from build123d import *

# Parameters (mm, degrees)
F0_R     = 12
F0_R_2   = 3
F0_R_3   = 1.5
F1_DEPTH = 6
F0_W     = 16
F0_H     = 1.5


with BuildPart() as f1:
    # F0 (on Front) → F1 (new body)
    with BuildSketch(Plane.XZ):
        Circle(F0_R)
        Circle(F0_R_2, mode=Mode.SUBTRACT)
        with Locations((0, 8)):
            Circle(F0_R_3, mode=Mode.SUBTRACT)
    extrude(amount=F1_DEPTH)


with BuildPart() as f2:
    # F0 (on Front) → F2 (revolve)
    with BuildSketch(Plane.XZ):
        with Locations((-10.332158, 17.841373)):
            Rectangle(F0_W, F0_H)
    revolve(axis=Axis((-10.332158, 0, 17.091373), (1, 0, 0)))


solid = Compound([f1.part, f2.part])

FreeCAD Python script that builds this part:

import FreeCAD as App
import Part
import Sketcher
from FreeCAD import Vector


def add_polygon(sketch, points):
    """Adds a closed chain of lines whose ends are joined by coincident constraints."""
    first, n = sketch.GeometryCount, len(points)
    for a, b in zip(points, points[1:] + points[:1]):
        sketch.addGeometry(Part.LineSegment(App.Vector(*a, 0), App.Vector(*b, 0)), False)
    for i in range(n):
        sketch.addConstraint(Sketcher.Constraint("Coincident", first + i, 2, first + (i + 1) % n, 1))

doc = App.newDocument("Part")
body = doc.addObject("PartDesign::Body", "Body")

# Sketch on XZ plane
sketch1 = body.newObject("Sketcher::SketchObject", "Sketch")
sketch1.AttachmentSupport = (doc.getObject("XZ_Plane"), [""])
sketch1.MapMode = "FlatFace"
sketch1.addGeometry(Part.Circle(Vector(0, 0, 0), Vector(0, 0, 1), 12), False)
sketch1.addGeometry(Part.Circle(Vector(0, 0, 0), Vector(0, 0, 1), 3), False)
sketch1.addGeometry(Part.Circle(Vector(0, 8, 0), Vector(0, 0, 1), 1.5), False)
sketch1.addConstraint(Sketcher.Constraint("Coincident", 0, 3, -1, 1))
sketch1.addConstraint(Sketcher.Constraint("Coincident", 1, 3, -1, 1))
sketch1.addConstraint(Sketcher.Constraint("PointOnObject", 2, 3, -2))
sketch1.addConstraint(Sketcher.Constraint("Diameter", 0, 24.0))
sketch1.addConstraint(Sketcher.Constraint("Diameter", 1, 6.0))
sketch1.addConstraint(Sketcher.Constraint("Diameter", 2, 3.0))
sketch1.addConstraint(Sketcher.Constraint("DistanceY", -1, 1, 2, 3, 8.0))
pad1 = body.newObject("PartDesign::Pad", "Pad")
pad1.Profile = sketch1
pad1.Length = 6
body2 = doc.addObject("PartDesign::Body", "Body001")

# Sketch on XZ plane
sketch2 = body2.newObject("Sketcher::SketchObject", "Sketch001")
sketch2.AttachmentSupport = (doc.getObject("XZ_Plane001"), [""])
sketch2.MapMode = "FlatFace"
add_polygon(sketch2, [(-18.332158, 18.591373), (-18.332158, 17.091373), (-2.332158, 17.091373), (-2.332158, 18.591373)])  # lines 0-3
sketch2.addGeometry(Part.LineSegment(Vector(-18.332158, 17.091373, 0), Vector(-2.332158, 17.091373, 0)), True)  # axis
sketch2.addConstraint(Sketcher.Constraint("Vertical", 0))
sketch2.addConstraint(Sketcher.Constraint("Horizontal", 1))
sketch2.addConstraint(Sketcher.Constraint("Vertical", 2))
sketch2.addConstraint(Sketcher.Constraint("Horizontal", 3))
sketch2.addConstraint(Sketcher.Constraint("Horizontal", 4))
sketch2.addConstraint(Sketcher.Constraint("Coincident", 4, 1, 0, 2))
sketch2.addConstraint(Sketcher.Constraint("Vertical", 2, 2, 4, 2))
sketch2.addConstraint(Sketcher.Constraint("DistanceX", 1, 1, 1, 2, 16.0))
sketch2.addConstraint(Sketcher.Constraint("DistanceY", 0, 2, 0, 1, 1.5))
sketch2.addConstraint(Sketcher.Constraint("DistanceX", 0, 2, -1, 1, 18.332158))
sketch2.addConstraint(Sketcher.Constraint("DistanceY", -1, 1, 0, 2, 17.091373))
revolution = body2.newObject("PartDesign::Revolution", "Revolution")
revolution.Profile = sketch2
revolution.ReferenceAxis = (sketch2, ["Axis0"])
revolution.Angle = 360

doc.recompute()
